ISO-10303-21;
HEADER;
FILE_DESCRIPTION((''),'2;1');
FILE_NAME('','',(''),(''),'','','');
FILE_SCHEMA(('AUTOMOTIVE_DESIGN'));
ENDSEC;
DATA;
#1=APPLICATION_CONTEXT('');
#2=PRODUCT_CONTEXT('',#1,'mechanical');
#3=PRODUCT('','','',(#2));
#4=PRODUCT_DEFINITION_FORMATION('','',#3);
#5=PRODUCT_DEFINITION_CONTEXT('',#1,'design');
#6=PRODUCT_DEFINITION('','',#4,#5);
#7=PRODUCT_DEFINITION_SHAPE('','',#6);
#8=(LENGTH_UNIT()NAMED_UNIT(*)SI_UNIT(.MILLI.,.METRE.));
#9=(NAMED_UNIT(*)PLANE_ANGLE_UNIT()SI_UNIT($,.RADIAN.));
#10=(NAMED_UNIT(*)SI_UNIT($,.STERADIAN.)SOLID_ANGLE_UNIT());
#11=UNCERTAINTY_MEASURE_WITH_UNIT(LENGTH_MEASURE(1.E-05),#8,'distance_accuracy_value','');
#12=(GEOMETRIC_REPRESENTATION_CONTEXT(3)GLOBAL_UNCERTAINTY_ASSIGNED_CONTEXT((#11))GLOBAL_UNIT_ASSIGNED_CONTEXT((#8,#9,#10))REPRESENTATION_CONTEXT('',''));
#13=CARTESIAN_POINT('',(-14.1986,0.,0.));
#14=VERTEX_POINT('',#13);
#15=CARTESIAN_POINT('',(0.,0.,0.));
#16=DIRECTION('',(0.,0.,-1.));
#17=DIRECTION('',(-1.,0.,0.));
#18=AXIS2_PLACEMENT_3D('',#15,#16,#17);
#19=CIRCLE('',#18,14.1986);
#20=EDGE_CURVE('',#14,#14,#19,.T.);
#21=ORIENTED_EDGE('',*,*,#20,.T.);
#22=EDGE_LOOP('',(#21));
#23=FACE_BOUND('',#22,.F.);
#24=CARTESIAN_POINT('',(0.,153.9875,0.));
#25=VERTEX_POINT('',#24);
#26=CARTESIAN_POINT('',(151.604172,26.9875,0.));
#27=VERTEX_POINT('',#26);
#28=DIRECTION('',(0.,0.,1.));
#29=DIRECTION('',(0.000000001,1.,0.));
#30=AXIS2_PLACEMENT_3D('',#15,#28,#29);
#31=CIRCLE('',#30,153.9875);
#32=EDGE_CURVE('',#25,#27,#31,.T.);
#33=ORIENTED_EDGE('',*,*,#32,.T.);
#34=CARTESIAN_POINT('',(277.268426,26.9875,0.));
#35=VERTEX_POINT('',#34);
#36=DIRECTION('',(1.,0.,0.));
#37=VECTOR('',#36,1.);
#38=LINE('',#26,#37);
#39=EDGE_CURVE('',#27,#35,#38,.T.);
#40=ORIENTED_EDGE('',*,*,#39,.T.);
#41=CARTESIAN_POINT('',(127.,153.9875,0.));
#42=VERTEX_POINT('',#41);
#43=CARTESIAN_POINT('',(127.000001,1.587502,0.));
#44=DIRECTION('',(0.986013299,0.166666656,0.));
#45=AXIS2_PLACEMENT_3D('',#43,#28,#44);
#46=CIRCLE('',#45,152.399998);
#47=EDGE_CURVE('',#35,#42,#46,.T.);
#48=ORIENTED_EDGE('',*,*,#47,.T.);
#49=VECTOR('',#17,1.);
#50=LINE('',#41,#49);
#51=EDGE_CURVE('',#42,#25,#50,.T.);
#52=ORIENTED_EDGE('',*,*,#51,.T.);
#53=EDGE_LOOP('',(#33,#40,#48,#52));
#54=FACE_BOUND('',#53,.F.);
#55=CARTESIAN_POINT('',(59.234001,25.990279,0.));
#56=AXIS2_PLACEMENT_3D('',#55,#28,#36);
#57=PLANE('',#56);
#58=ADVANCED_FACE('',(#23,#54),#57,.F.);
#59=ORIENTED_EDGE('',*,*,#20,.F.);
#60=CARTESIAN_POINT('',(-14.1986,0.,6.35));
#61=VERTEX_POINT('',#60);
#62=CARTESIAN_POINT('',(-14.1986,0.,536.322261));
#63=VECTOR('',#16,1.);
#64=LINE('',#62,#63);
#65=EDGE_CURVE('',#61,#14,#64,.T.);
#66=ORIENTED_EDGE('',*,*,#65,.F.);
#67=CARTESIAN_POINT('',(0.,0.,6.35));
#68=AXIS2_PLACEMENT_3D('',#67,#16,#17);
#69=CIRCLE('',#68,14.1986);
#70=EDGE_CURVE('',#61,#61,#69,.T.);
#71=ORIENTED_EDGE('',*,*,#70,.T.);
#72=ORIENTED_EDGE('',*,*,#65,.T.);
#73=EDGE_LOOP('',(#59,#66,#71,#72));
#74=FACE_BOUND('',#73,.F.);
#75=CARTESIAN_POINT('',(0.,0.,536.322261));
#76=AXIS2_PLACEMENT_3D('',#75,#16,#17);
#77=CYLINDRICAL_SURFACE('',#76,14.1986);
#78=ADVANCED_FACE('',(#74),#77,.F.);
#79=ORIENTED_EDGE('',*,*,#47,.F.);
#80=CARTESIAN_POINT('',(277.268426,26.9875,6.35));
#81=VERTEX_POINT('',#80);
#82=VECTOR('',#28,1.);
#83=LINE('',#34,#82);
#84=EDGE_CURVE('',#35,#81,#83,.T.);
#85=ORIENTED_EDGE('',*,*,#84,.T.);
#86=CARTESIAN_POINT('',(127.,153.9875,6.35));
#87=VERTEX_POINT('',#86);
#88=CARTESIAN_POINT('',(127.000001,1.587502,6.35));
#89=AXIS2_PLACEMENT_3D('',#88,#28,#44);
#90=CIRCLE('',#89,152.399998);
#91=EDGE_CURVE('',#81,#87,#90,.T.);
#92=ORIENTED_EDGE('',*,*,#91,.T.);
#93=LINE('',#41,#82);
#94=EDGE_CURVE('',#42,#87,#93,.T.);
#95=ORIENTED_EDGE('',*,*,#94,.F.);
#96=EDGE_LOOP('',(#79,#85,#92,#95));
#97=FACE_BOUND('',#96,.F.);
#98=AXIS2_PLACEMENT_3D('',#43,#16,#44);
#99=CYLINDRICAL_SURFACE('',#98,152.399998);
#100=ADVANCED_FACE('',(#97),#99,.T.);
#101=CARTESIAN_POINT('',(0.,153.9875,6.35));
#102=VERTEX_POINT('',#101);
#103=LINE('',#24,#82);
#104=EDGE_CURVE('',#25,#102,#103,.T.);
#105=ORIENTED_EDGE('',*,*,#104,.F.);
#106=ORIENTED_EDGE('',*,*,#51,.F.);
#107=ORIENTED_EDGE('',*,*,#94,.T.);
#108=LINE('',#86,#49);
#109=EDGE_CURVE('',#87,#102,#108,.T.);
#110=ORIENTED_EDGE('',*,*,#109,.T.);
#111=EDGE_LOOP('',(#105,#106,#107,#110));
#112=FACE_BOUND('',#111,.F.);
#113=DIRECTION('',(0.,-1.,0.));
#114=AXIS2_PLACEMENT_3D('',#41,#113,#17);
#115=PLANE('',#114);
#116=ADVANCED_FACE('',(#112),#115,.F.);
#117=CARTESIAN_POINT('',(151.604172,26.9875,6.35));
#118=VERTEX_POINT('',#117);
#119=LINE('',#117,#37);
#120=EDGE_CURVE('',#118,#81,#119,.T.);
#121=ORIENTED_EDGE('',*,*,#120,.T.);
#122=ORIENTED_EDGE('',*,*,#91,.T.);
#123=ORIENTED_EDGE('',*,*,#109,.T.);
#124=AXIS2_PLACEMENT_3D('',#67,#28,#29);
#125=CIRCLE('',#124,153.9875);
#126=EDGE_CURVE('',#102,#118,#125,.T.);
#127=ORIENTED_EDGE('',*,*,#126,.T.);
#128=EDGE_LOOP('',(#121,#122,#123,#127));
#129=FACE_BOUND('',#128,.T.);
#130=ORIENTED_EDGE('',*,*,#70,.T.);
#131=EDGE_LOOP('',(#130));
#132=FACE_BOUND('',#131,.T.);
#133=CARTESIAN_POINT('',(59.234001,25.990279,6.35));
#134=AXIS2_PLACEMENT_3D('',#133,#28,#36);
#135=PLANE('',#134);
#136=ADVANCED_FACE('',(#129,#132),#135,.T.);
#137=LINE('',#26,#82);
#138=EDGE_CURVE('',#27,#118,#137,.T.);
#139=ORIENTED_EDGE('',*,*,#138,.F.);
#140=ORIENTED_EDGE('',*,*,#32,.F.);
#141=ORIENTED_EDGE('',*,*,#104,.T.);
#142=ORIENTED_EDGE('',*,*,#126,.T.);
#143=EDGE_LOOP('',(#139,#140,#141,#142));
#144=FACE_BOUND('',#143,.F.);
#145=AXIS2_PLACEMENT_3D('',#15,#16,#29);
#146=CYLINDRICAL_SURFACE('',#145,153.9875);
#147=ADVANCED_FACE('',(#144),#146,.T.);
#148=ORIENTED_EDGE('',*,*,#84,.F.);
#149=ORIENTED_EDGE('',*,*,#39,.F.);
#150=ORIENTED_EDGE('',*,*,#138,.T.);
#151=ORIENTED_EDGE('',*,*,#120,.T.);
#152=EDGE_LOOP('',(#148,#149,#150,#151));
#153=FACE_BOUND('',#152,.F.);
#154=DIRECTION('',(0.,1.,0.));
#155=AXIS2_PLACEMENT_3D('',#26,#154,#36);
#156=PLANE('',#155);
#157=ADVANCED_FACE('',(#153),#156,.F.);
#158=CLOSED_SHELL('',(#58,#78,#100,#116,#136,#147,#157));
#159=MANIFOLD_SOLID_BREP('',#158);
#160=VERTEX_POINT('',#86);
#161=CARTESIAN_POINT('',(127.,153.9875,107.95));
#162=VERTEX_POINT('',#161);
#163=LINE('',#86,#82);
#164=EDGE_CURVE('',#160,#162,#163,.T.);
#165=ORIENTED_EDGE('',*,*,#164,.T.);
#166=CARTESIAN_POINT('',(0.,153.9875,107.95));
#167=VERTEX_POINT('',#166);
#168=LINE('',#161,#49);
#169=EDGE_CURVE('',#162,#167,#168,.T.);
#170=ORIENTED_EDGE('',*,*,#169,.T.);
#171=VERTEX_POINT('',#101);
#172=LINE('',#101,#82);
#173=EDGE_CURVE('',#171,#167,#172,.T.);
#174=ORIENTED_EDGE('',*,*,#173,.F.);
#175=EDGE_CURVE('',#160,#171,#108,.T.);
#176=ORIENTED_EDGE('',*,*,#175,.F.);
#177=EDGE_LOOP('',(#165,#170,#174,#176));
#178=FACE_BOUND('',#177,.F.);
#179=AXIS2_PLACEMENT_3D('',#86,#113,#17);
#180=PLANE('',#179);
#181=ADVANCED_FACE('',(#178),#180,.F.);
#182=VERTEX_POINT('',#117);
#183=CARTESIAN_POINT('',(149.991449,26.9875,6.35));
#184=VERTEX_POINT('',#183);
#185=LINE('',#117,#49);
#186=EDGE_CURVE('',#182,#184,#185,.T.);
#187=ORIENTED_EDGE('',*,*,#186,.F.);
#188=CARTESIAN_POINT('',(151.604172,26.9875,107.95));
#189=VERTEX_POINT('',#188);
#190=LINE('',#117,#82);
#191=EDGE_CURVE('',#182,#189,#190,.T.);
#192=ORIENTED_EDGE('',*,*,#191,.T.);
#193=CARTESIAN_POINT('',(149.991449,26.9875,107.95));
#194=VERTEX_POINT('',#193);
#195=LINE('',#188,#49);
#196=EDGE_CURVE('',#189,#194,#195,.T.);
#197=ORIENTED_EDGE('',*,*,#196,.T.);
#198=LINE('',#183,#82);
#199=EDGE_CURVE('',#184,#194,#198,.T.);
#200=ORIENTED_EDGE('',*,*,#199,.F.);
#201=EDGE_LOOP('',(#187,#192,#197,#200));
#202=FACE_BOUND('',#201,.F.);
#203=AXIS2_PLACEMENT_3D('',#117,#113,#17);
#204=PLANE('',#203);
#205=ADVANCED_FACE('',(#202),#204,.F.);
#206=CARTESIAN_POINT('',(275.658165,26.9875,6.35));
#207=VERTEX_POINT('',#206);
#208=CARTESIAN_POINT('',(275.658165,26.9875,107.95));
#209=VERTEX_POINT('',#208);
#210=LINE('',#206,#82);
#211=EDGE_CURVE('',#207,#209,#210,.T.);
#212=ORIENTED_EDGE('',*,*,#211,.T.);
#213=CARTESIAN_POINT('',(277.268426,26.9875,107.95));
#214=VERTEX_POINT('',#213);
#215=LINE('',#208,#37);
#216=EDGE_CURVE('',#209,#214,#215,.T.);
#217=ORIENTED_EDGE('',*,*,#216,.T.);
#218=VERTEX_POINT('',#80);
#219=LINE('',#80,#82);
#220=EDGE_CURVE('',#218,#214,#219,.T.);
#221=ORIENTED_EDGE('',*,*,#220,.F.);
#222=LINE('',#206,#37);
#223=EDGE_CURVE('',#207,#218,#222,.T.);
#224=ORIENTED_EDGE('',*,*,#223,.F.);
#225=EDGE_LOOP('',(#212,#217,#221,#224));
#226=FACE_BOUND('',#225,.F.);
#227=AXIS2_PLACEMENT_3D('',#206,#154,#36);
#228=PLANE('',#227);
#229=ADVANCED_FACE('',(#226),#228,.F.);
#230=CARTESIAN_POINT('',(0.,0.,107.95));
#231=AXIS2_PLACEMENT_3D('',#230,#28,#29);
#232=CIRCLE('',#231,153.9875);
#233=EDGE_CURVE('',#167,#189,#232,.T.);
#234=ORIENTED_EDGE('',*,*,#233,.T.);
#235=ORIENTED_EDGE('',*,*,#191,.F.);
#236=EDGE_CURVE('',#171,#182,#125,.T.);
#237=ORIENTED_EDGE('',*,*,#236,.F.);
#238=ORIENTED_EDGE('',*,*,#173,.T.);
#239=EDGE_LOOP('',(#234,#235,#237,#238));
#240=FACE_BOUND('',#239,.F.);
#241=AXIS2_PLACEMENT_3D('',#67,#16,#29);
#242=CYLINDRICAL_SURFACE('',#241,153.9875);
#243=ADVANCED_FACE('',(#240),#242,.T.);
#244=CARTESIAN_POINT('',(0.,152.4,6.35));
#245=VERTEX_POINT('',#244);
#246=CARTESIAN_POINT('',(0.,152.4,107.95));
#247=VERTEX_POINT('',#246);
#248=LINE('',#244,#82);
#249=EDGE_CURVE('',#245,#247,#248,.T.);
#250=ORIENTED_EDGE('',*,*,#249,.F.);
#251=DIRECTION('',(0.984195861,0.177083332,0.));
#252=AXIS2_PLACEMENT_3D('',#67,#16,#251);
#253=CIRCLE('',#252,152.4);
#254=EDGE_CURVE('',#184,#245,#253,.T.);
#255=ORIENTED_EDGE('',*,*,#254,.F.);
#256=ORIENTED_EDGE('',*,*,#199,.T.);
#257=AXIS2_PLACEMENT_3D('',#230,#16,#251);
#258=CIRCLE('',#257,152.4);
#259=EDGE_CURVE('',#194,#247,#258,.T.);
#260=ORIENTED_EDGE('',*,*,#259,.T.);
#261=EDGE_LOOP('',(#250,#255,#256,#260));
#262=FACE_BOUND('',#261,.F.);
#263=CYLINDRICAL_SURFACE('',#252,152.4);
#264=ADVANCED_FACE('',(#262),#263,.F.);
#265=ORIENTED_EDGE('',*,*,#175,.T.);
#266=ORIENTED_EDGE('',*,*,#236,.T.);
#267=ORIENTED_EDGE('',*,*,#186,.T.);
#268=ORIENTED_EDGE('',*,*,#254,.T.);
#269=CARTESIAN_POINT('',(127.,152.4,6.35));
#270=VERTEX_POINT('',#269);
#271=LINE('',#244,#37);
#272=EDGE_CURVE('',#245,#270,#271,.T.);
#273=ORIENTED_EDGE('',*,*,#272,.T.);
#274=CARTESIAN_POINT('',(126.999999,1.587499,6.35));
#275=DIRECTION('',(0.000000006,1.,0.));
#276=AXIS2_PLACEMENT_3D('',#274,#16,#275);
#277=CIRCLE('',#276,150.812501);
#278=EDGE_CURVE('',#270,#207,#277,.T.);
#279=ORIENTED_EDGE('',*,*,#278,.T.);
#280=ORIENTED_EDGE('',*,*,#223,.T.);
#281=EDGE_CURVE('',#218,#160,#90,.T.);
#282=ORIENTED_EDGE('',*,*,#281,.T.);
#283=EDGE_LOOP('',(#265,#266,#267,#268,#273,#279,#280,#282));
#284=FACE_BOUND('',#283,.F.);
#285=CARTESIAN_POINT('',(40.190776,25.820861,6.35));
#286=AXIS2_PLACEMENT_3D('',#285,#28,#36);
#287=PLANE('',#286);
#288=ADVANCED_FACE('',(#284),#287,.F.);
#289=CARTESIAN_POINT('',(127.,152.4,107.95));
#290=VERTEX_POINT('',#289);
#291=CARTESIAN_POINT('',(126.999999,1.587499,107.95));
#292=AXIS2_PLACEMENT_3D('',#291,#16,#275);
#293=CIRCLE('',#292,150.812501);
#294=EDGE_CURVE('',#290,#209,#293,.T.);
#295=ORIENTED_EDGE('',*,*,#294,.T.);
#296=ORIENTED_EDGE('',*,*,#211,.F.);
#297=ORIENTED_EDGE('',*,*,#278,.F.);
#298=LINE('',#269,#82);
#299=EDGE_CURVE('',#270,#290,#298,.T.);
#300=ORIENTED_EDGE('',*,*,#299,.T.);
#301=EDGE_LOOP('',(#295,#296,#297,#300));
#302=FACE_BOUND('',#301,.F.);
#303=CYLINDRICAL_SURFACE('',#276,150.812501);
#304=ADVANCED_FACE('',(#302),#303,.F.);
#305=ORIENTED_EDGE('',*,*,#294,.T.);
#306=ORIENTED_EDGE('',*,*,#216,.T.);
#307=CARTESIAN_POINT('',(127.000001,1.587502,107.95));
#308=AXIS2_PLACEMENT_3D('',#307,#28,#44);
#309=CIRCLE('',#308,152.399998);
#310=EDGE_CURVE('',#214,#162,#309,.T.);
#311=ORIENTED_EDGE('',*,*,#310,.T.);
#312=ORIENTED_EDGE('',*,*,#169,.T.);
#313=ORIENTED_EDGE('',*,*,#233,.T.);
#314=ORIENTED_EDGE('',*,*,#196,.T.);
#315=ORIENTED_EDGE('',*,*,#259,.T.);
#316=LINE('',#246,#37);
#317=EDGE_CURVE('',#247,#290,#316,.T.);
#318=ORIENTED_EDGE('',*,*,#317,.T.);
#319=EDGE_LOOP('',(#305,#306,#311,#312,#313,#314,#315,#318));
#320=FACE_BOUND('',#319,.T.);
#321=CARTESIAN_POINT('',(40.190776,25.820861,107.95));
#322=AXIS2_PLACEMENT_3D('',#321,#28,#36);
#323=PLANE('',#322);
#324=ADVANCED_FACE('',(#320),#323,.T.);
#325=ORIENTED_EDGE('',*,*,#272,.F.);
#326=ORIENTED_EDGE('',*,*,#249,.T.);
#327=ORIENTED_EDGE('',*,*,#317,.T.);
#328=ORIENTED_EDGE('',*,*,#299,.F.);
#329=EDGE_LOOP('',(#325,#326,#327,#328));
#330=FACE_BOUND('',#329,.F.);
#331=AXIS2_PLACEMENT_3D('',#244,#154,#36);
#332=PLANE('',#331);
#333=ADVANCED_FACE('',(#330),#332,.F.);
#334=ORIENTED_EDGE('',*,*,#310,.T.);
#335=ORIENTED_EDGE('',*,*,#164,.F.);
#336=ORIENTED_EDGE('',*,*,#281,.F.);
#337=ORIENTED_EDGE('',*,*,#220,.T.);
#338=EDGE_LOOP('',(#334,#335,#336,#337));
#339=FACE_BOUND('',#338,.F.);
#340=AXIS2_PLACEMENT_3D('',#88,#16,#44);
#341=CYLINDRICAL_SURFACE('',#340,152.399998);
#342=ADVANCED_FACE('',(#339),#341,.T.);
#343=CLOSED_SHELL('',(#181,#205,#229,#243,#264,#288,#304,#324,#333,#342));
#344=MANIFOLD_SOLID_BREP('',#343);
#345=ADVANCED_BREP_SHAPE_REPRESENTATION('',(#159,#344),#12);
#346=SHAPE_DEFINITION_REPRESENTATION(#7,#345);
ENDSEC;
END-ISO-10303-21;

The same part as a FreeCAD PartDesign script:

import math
import FreeCAD as App
import Part
import Sketcher
from FreeCAD import Vector
Q = App.Units.Quantity

doc = App.newDocument("Part")
body = doc.addObject("PartDesign::Body", "Body")

# Sketch on XY plane
sketch1 = doc.addObject("Sketcher::SketchObject", "Sketch")
body.addObject(sketch1)
sketch1.AttachmentSupport = (doc.XY_Plane, [""])
sketch1.MapMode = "FlatFace"
sketch1.addGeometry(Part.LineSegment(Vector(127, 154, 0), Vector(0, 154, 0)), False)
sketch1.addGeometry(Part.ArcOfCircle(Part.Circle(Vector(0, 0, 0), Vector(0, 0, 1), 154), math.radians(90), math.radians(370)), False)
sketch1.addGeometry(Part.LineSegment(Vector(152, 27, 0), Vector(277, 27, 0)), False)
sketch1.addGeometry(Part.ArcOfCircle(Part.Circle(Vector(127, 2, 0), Vector(0, 0, 1), 152), math.radians(10), math.radians(90)), False)
sketch1.addConstraint(Sketcher.Constraint("Tangent", 0, 2, 1, 1))
sketch1.addConstraint(Sketcher.Constraint("Coincident", 1, 2, 2, 1))
sketch1.addConstraint(Sketcher.Constraint("Coincident", 2, 2, 3, 1))
sketch1.addConstraint(Sketcher.Constraint("Tangent", 3, 2, 0, 1))
sketch1.addConstraint(Sketcher.Constraint("Horizontal", 0))
sketch1.addConstraint(Sketcher.Constraint("Horizontal", 2))
sketch1.addConstraint(Sketcher.Constraint("Coincident", 1, 3, -1, 1))
sketch1.addConstraint(Sketcher.Constraint("Radius", 3, Q("5.9999999 in")))
sketch1.addConstraint(Sketcher.Constraint("DistanceX", 0, 2, 0, 1, Q("5 in")))
sketch1.addConstraint(Sketcher.Constraint("Radius", 1, Q("6.0625 in")))
sketch1.addConstraint(Sketcher.Constraint("DistanceY", 3, 3, 1, 2, Q("0.9999999 in")))
pad1 = doc.addObject("PartDesign::Pad", "Pad")
body.addObject(pad1)
pad1.Profile = sketch1
pad1.Length = Q("0.25 in")

# Sketch on XY plane
sketch2 = doc.addObject("Sketcher::SketchObject", "Sketch001")
body.addObject(sketch2)
sketch2.AttachmentSupport = (doc.XY_Plane, [""])
sketch2.MapMode = "FlatFace"
sketch2.AttachmentOffset = App.Placement(Vector(0, 0, 0.25 * 25.4), App.Rotation())
sketch2.addGeometry(Part.Circle(Vector(0, 0, 0), Vector(0, 0, 1), 14), False)
sketch2.addConstraint(Sketcher.Constraint("Coincident", 0, 3, -1, 1))
sketch2.addConstraint(Sketcher.Constraint("Diameter", 0, Q("1.118 in")))
doc.recompute()
hole = doc.addObject("PartDesign::Hole", "Hole")
body.addObject(hole)
hole.Profile = sketch2
hole.ThreadType = "None"
hole.Diameter = Q("1.118 in")
hole.DepthType = "ThroughAll"
body2 = doc.addObject("PartDesign::Body", "Body001")

# Sketch on XY plane
sketch3 = doc.addObject("Sketcher::SketchObject", "Sketch002")
body2.addObject(sketch3)
sketch3.AttachmentSupport = (doc.getObject("XY_Plane001"), [""])
sketch3.MapMode = "FlatFace"
sketch3.AttachmentOffset = App.Placement(Vector(0, 0, 0.25 * 25.4), App.Rotation())
sketch3.addGeometry(Part.ArcOfCircle(Part.Circle(Vector(0, 0, 0), Vector(0, 0, 1), 152.4), math.radians(90), math.radians(370)), False)
sketch3.addGeometry(Part.LineSegment(Vector(0, 152.4, 0), Vector(127, 152.4, 0)), False)
sketch3.addGeometry(Part.ArcOfCircle(Part.Circle(Vector(127, 1.6, 0), Vector(0, 0, 1), 150.8), math.radians(10), math.radians(90)), False)
sketch3.addGeometry(Part.LineSegment(Vector(275.7, 27, 0), Vector(277.3, 27, 0)), False)
sketch3.addGeometry(Part.ArcOfCircle(Part.Circle(Vector(127, 1.6, 0), Vector(0, 0, 1), 152.4), math.radians(10), math.radians(90)), False)
sketch3.addGeometry(Part.LineSegment(Vector(127, 154, 0), Vector(0, 154, 0)), False)
sketch3.addGeometry(Part.ArcOfCircle(Part.Circle(Vector(0, 0, 0), Vector(0, 0, 1), 154), math.radians(90), math.radians(370)), False)
sketch3.addGeometry(Part.LineSegment(Vector(151.6, 27, 0), Vector(150, 27, 0)), False)
sketch3.addConstraint(Sketcher.Constraint("Tangent", 0, 1, 1, 1))
sketch3.addConstraint(Sketcher.Constraint("Tangent", 1, 2, 2, 2))
sketch3.addConstraint(Sketcher.Constraint("Coincident", 2, 1, 3, 1))
sketch3.addConstraint(Sketcher.Constraint("Coincident", 3, 2, 4, 1))
sketch3.addConstraint(Sketcher.Constraint("Tangent", 4, 2, 5, 1))
sketch3.addConstraint(Sketcher.Constraint("Tangent", 5, 2, 6, 1))
sketch3.addConstraint(Sketcher.Constraint("Coincident", 6, 2, 7, 1))
sketch3.addConstraint(Sketcher.Constraint("Coincident", 7, 2, 0, 2))
sketch3.addConstraint(Sketcher.Constraint("Horizontal", 1))
sketch3.addConstraint(Sketcher.Constraint("Horizontal", 3))
sketch3.addConstraint(Sketcher.Constraint("Horizontal", 5))
sketch3.addConstraint(Sketcher.Constraint("Horizontal", 7))
sketch3.addConstraint(Sketcher.Constraint("Coincident", 0, 3, -1, 1))
sketch3.addConstraint(Sketcher.Constraint("Coincident", 6, 3, -1, 1))
sketch3.addConstraint(Sketcher.Constraint("Coincident", 4, 3, 2, 3))
sketch3.addConstraint(Sketcher.Constraint("Equal", 0, 4))
sketch3.addConstraint(Sketcher.Constraint("Horizontal", 3, 2, 6, 2))
sketch3.addConstraint(Sketcher.Constraint("Radius", 0, Q("6 in")))
sketch3.addConstraint(Sketcher.Constraint("DistanceX", 1, 1, 1, 2, Q("5 in")))
sketch3.addConstraint(Sketcher.Constraint("Radius", 2, Q("5.9375 in")))
sketch3.addConstraint(Sketcher.Constraint("DistanceY", 4, 3, 2, 1, Q("0.9999999 in")))
pad2 = doc.addObject("PartDesign::Pad", "Pad001")
body2.addObject(pad2)
pad2.Profile = sketch3
pad2.Length = Q("4 in")

doc.recompute()
